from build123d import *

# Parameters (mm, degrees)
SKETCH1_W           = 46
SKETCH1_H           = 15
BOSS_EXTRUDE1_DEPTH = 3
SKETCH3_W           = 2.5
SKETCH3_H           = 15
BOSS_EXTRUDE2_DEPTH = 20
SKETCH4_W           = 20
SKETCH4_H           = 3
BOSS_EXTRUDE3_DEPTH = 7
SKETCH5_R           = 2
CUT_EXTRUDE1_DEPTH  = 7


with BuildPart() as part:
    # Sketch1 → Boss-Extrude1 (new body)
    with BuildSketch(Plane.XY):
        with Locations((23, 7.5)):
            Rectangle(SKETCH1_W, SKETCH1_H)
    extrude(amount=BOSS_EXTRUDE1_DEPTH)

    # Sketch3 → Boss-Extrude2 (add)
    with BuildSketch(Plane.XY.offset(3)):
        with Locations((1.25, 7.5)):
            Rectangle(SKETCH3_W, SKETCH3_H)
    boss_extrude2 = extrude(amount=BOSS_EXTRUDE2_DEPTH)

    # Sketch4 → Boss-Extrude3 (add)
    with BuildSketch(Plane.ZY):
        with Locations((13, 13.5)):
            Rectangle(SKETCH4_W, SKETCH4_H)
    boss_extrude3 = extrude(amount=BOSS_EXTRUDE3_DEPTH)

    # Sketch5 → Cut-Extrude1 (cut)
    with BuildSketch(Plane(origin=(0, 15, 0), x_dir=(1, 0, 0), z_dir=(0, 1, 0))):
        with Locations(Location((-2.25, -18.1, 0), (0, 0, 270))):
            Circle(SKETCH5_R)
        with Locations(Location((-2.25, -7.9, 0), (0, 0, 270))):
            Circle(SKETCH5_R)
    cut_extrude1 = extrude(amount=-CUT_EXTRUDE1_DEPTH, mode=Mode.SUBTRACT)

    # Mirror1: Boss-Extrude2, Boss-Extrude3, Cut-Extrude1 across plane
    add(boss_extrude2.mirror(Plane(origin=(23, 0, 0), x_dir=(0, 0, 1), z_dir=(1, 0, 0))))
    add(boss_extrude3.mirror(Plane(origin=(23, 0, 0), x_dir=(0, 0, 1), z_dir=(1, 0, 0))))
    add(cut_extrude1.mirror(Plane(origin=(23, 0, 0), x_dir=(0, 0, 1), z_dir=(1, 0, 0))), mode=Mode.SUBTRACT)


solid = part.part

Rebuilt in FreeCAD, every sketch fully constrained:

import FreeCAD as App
import Part
import Sketcher
Q = App.Units.Quantity


def add_polygon(sketch, points):
    """Adds a closed chain of lines whose ends are joined by coincident constraints."""
    first, n = sketch.GeometryCount, len(points)
    for a, b in zip(points, points[1:] + points[:1]):
        sketch.addGeometry(Part.LineSegment(App.Vector(*a, 0), App.Vector(*b, 0)), False)
    for i in range(n):
        sketch.addConstraint(Sketcher.Constraint("Coincident", first + i, 2, first + (i + 1) % n, 1))

doc = App.newDocument("Part")
body = doc.addObject("PartDesign::Body", "Body")

# Sketch on XY plane
sketch1 = body.newObject("Sketcher::SketchObject", "Sketch")
sketch1.AttachmentSupport = (doc.getObject("XY_Plane"), [""])
sketch1.MapMode = "FlatFace"
add_polygon(sketch1, [(0, 15), (0, 0), (46, 0), (46, 15)])  # lines 0-3
sketch1.addConstraint([
    Sketcher.Constraint("Vertical", 0),
    Sketcher.Constraint("Horizontal", 1),
    Sketcher.Constraint("Vertical", 2),
    Sketcher.Constraint("Horizontal", 3),
    Sketcher.Constraint("Coincident", 0, 2, -1, 1),
    Sketcher.Constraint("DistanceX", 1, 1, 1, 2, Q("46 mm")),
    Sketcher.Constraint("DistanceY", 0, 2, 0, 1, Q("15 mm")),
])
pad1 = body.newObject("PartDesign::Pad", "Pad")
pad1.Profile = sketch1
pad1.Length = 3

# Sketch on XY plane
sketch2 = body.newObject("Sketcher::SketchObject", "Sketch001")
sketch2.AttachmentSupport = (doc.getObject("XY_Plane"), [""])
sketch2.MapMode = "FlatFace"
sketch2.AttachmentOffset = App.Placement(App.Vector(0, 0, 3), App.Rotation())
add_polygon(sketch2, [(0, 15), (0, 0), (2.5, 0), (2.5, 15)])  # lines 0-3
sketch2.addConstraint([
    Sketcher.Constraint("Vertical", 0),
    Sketcher.Constraint("Horizontal", 1),
    Sketcher.Constraint("Vertical", 2),
    Sketcher.Constraint("Horizontal", 3),
    Sketcher.Constraint("Coincident", 0, 2, -1, 1),
    Sketcher.Constraint("DistanceY", 0, 2, 0, 1, Q("15 mm")),
    Sketcher.Constraint("DistanceX", 1, 1, 1, 2, Q("2.5 mm")),
])
pad2 = body.newObject("PartDesign::Pad", "Pad001")
pad2.Profile = sketch2
pad2.Length = 20

# Sketch on YZ plane
sketch3 = body.newObject("Sketcher::SketchObject", "Sketch002")
sketch3.AttachmentSupport = (doc.getObject("YZ_Plane"), [""])
sketch3.MapMode = "FlatFace"
add_polygon(sketch3, [(15, 3), (12, 3), (12, 23), (15, 23)])  # lines 0-3
sketch3.addConstraint([
    Sketcher.Constraint("Horizontal", 0),
    Sketcher.Constraint("Vertical", 1),
    Sketcher.Constraint("Horizontal", 2),
    Sketcher.Constraint("Vertical", 3),
    Sketcher.Constraint("DistanceX", 0, 2, 0, 1, Q("3 mm")),
    Sketcher.Constraint("DistanceY", 1, 1, 1, 2, Q("20 mm")),
    Sketcher.Constraint("DistanceX", -1, 1, 0, 2, Q("12 mm")),
    Sketcher.Constraint("DistanceY", -1, 1, 0, 2, Q("3 mm")),
])
pad3 = body.newObject("PartDesign::Pad", "Pad002")
pad3.Profile = sketch3
pad3.Length = 7
pad3.Reversed = True

# Sketch on XZ plane
sketch4 = body.newObject("Sketcher::SketchObject", "Sketch003")
sketch4.AttachmentSupport = (doc.getObject("XZ_Plane"), [""])
sketch4.MapMode = "FlatFace"
sketch4.AttachmentOffset = App.Placement(App.Vector(0, 0, -15), App.Rotation())
sketch4.addGeometry([
    Part.Circle(App.Vector(-2.25, 18.1, 0), App.Vector(0, 0, 1), 2),
    Part.Circle(App.Vector(-2.25, 7.9, 0), App.Vector(0, 0, 1), 2),
], False)
sketch4.addConstraint([
    Sketcher.Constraint("Equal", 0, 1),
    Sketcher.Constraint("Vertical", 0, 3, 1, 3),
    Sketcher.Constraint("Diameter", 0, Q("4 mm")),
    Sketcher.Constraint("DistanceY", -1, 1, 0, 3, Q("18.1 mm")),
    Sketcher.Constraint("DistanceY", -1, 1, 1, 3, Q("7.9 mm")),
    Sketcher.Constraint("DistanceX", 0, 3, -1, 1, Q("2.25 mm")),
])
pocket1 = body.newObject("PartDesign::Pocket", "Pocket")
pocket1.Profile = sketch4
pocket1.Length = 7
pocket1.Reversed = True
doc.recompute()

datumplane = body.newObject("PartDesign::Plane", "DatumPlane")
datumplane.AttachmentSupport = (doc.getObject("YZ_Plane"), [""])
datumplane.MapMode = "FlatFace"
datumplane.AttachmentOffset = App.Placement(App.Vector(0, 0, 23), App.Rotation())
mirrored = body.newObject("PartDesign::Mirrored", "Mirrored")
mirrored.Originals = [pad2, pad3, pocket1]
mirrored.MirrorPlane = (datumplane, [""])
body.Tip = mirrored

doc.recompute()
